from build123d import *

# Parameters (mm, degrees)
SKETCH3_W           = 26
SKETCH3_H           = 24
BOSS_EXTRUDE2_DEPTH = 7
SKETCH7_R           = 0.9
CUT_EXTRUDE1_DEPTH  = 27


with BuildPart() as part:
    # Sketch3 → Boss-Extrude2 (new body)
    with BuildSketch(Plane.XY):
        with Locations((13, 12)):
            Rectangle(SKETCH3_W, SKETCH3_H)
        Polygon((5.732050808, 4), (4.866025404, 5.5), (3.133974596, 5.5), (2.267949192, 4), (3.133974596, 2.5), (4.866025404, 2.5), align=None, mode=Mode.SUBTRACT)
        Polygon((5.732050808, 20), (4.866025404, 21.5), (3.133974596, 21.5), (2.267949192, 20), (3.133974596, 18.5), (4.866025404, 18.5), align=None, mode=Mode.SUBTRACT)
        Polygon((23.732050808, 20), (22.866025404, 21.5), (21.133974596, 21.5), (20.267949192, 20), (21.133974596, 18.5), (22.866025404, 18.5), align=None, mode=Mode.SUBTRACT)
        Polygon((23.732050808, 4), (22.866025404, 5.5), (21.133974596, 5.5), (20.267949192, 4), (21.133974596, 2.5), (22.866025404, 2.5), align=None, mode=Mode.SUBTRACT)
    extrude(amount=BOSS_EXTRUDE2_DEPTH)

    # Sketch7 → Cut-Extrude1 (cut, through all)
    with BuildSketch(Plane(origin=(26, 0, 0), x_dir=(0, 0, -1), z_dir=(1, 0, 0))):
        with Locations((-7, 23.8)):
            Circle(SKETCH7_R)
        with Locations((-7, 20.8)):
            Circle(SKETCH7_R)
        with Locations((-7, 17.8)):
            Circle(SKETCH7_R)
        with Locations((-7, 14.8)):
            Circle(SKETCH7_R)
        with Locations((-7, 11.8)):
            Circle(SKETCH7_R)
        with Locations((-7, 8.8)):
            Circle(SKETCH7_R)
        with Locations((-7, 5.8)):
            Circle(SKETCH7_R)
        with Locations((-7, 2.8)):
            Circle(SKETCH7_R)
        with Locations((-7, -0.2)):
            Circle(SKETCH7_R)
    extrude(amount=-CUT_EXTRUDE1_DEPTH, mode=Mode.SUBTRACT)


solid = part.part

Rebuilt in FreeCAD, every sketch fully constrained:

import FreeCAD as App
import Part
import Sketcher
Q = App.Units.Quantity

doc = App.newDocument("Part")
params = doc.addObject("Spreadsheet::Sheet", "Params")
for row, (alias, value) in enumerate([
    ("sketch1_width", "26 mm"),
    ("sketch1_height", "24 mm"),
    ("pad1_length", "7 mm"),
    ("sketch2_diameter", "1.8 mm"),
], start=1):
    params.set(f"A{row}", alias)
    params.set(f"B{row}", "=" + value)
    params.setAlias(f"B{row}", alias)

body = doc.addObject("PartDesign::Body", "Body")

# Sketch on XY plane
sketch1 = body.newObject("Sketcher::SketchObject", "Sketch")
sketch1.AttachmentSupport = (doc.getObject("XY_Plane"), [""])
sketch1.MapMode = "FlatFace"
sketch1.addGeometry([
    Part.LineSegment(App.Vector(0, 24, 0), App.Vector(0, 0, 0)),  # 0
    Part.LineSegment(App.Vector(0, 0, 0), App.Vector(26, 0, 0)),  # 1
    Part.LineSegment(App.Vector(26, 0, 0), App.Vector(26, 24, 0)),  # 2
    Part.LineSegment(App.Vector(26, 24, 0), App.Vector(0, 24, 0)),  # 3
    Part.LineSegment(App.Vector(4.9, 5.5, 0), App.Vector(5.7, 4, 0)),  # 4
    Part.LineSegment(App.Vector(5.7, 4, 0), App.Vector(4.9, 2.5, 0)),  # 5
    Part.LineSegment(App.Vector(4.9, 2.5, 0), App.Vector(3.1, 2.5, 0)),  # 6
    Part.LineSegment(App.Vector(3.1, 2.5, 0), App.Vector(2.3, 4, 0)),  # 7
    Part.LineSegment(App.Vector(2.3, 4, 0), App.Vector(3.1, 5.5, 0)),  # 8
    Part.LineSegment(App.Vector(3.1, 5.5, 0), App.Vector(4.9, 5.5, 0)),  # 9
    Part.LineSegment(App.Vector(22.9, 5.5, 0), App.Vector(23.7, 4, 0)),  # 10
    Part.LineSegment(App.Vector(23.7, 4, 0), App.Vector(22.9, 2.5, 0)),  # 11
    Part.LineSegment(App.Vector(22.9, 2.5, 0), App.Vector(21.1, 2.5, 0)),  # 12
    Part.LineSegment(App.Vector(21.1, 2.5, 0), App.Vector(20.3, 4, 0)),  # 13
    Part.LineSegment(App.Vector(20.3, 4, 0), App.Vector(21.1, 5.5, 0)),  # 14
    Part.LineSegment(App.Vector(21.1, 5.5, 0), App.Vector(22.9, 5.5, 0)),  # 15
    Part.LineSegment(App.Vector(4.9, 21.5, 0), App.Vector(5.7, 20, 0)),  # 16
    Part.LineSegment(App.Vector(5.7, 20, 0), App.Vector(4.9, 18.5, 0)),  # 17
    Part.LineSegment(App.Vector(4.9, 18.5, 0), App.Vector(3.1, 18.5, 0)),  # 18
    Part.LineSegment(App.Vector(3.1, 18.5, 0), App.Vector(2.3, 20, 0)),  # 19
    Part.LineSegment(App.Vector(2.3, 20, 0), App.Vector(3.1, 21.5, 0)),  # 20
    Part.LineSegment(App.Vector(3.1, 21.5, 0), App.Vector(4.9, 21.5, 0)),  # 21
    Part.LineSegment(App.Vector(22.9, 21.5, 0), App.Vector(23.7, 20, 0)),  # 22
    Part.LineSegment(App.Vector(23.7, 20, 0), App.Vector(22.9, 18.5, 0)),  # 23
    Part.LineSegment(App.Vector(22.9, 18.5, 0), App.Vector(21.1, 18.5, 0)),  # 24
    Part.LineSegment(App.Vector(21.1, 18.5, 0), App.Vector(20.3, 20, 0)),  # 25
    Part.LineSegment(App.Vector(20.3, 20, 0), App.Vector(21.1, 21.5, 0)),  # 26
    Part.LineSegment(App.Vector(21.1, 21.5, 0), App.Vector(22.9, 21.5, 0)),  # 27
], False)
sketch1.addConstraint([
    Sketcher.Constraint("Coincident", 0, 2, 1, 1),
    Sketcher.Constraint("Coincident", 1, 2, 2, 1),
    Sketcher.Constraint("Coincident", 2, 2, 3, 1),
    Sketcher.Constraint("Coincident", 3, 2, 0, 1),
    Sketcher.Constraint("Coincident", 4, 2, 5, 1),
    Sketcher.Constraint("Coincident", 5, 2, 6, 1),
    Sketcher.Constraint("Coincident", 6, 2, 7, 1),
    Sketcher.Constraint("Coincident", 7, 2, 8, 1),
    Sketcher.Constraint("Coincident", 8, 2, 9, 1),
    Sketcher.Constraint("Coincident", 9, 2, 4, 1),
    Sketcher.Constraint("Coincident", 10, 2, 11, 1),
    Sketcher.Constraint("Coincident", 11, 2, 12, 1),
    Sketcher.Constraint("Coincident", 12, 2, 13, 1),
    Sketcher.Constraint("Coincident", 13, 2, 14, 1),
    Sketcher.Constraint("Coincident", 14, 2, 15, 1),
    Sketcher.Constraint("Coincident", 15, 2, 10, 1),
    Sketcher.Constraint("Coincident", 16, 2, 17, 1),
    Sketcher.Constraint("Coincident", 17, 2, 18, 1),
    Sketcher.Constraint("Coincident", 18, 2, 19, 1),
    Sketcher.Constraint("Coincident", 19, 2, 20, 1),
    Sketcher.Constraint("Coincident", 20, 2, 21, 1),
    Sketcher.Constraint("Coincident", 21, 2, 16, 1),
    Sketcher.Constraint("Coincident", 22, 2, 23, 1),
    Sketcher.Constraint("Coincident", 23, 2, 24, 1),
    Sketcher.Constraint("Coincident", 24, 2, 25, 1),
    Sketcher.Constraint("Coincident", 25, 2, 26, 1),
    Sketcher.Constraint("Coincident", 26, 2, 27, 1),
    Sketcher.Constraint("Coincident", 27, 2, 22, 1),
    Sketcher.Constraint("Vertical", 0),
    Sketcher.Constraint("Horizontal", 1),
    Sketcher.Constraint("Vertical", 2),
    Sketcher.Constraint("Horizontal", 3),
    Sketcher.Constraint("Horizontal", 6),
    Sketcher.Constraint("Horizontal", 9),
    Sketcher.Constraint("Horizontal", 12),
    Sketcher.Constraint("Horizontal", 15),
    Sketcher.Constraint("Horizontal", 18),
    Sketcher.Constraint("Horizontal", 21),
    Sketcher.Constraint("Horizontal", 24),
    Sketcher.Constraint("Horizontal", 27),
    Sketcher.Constraint("Coincident", 0, 2, -1, 1),
    Sketcher.Constraint("Parallel", 4, 7),
    Sketcher.Constraint("Parallel", 5, 8),
    Sketcher.Constraint("Parallel", 7, 10),
    Sketcher.Constraint("Parallel", 8, 11),
    Sketcher.Constraint("Parallel", 10, 13),
    Sketcher.Constraint("Parallel", 11, 14),
    Sketcher.Constraint("Parallel", 13, 16),
    Sketcher.Constraint("Parallel", 14, 17),
    Sketcher.Constraint("Parallel", 16, 19),
    Sketcher.Constraint("Parallel", 17, 20),
    Sketcher.Constraint("Parallel", 19, 22),
    Sketcher.Constraint("Parallel", 20, 23),
    Sketcher.Constraint("Parallel", 22, 25),
    Sketcher.Constraint("Parallel", 23, 26),
    Sketcher.Constraint("Horizontal", 4, 2, 7, 2),
    Sketcher.Constraint("Horizontal", 7, 2, 10, 2),
    Sketcher.Constraint("Horizontal", 6, 2, 11, 2),
    Sketcher.Constraint("Horizontal", 10, 2, 13, 2),
    Sketcher.Constraint("Horizontal", 9, 2, 14, 2),
    Sketcher.Constraint("Horizontal", 16, 2, 19, 2),
    Sketcher.Constraint("Horizontal", 19, 2, 22, 2),
    Sketcher.Constraint("Horizontal", 18, 2, 23, 2),
    Sketcher.Constraint("Horizontal", 22, 2, 25, 2),
    Sketcher.Constraint("Horizontal", 21, 2, 26, 2),
    Sketcher.Constraint("Vertical", 6, 2, 8, 2),
    Sketcher.Constraint("Vertical", 5, 2, 9, 2),
    Sketcher.Constraint("Vertical", 4, 2, 16, 2),
    Sketcher.Constraint("Vertical", 9, 2, 17, 2),
    Sketcher.Constraint("Vertical", 8, 2, 18, 2),
    Sketcher.Constraint("Vertical", 18, 2, 20, 2),
    Sketcher.Constraint("Vertical", 10, 2, 22, 2),
    Sketcher.Constraint("Vertical", 14, 2, 24, 2),
    Sketcher.Constraint("Equal", 9, 12),
    Sketcher.Constraint("DistanceX", 1, 1, 1, 2, Q("26 mm")),
    Sketcher.Constraint("DistanceY", 0, 2, 0, 1, Q("24 mm")),
    Sketcher.Constraint("Angle", 4, Q("-60 deg")),
    Sketcher.Constraint("DistanceY", -1, 1, 4, 2, Q("4 mm")),
    Sketcher.Constraint("DistanceY", -1, 1, 16, 2, Q("20 mm")),
    Sketcher.Constraint("DistanceY", 6, 2, 8, 2, Q("3 mm")),
    Sketcher.Constraint("DistanceX", 4, 2, 10, 2, Q("18 mm")),
    Sketcher.Constraint("DistanceX", 6, 2, 6, 1, Q("1.732051 mm")),
    Sketcher.Constraint("DistanceX", -1, 1, 4, 2, Q("5.732051 mm")),
])
sketch1.setExpression("Constraints[74]", "Params.sketch1_width")
sketch1.setExpression("Constraints[75]", "Params.sketch1_height")
pad1 = body.newObject("PartDesign::Pad", "Pad")
pad1.Profile = sketch1
pad1.setExpression("Length", "Params.pad1_length")

# Sketch on YZ plane
sketch2 = body.newObject("Sketcher::SketchObject", "Sketch001")
sketch2.AttachmentSupport = (doc.getObject("YZ_Plane"), [""])
sketch2.MapMode = "FlatFace"
sketch2.AttachmentOffset = App.Placement(App.Vector(0, 0, 26), App.Rotation())
sketch2.addGeometry([
    Part.Circle(App.Vector(23.8, 7, 0), App.Vector(0, 0, 1), 0.9),  # 0
    Part.Circle(App.Vector(20.8, 7, 0), App.Vector(0, 0, 1), 0.9),  # 1
    Part.Circle(App.Vector(17.8, 7, 0), App.Vector(0, 0, 1), 0.9),  # 2
    Part.Circle(App.Vector(14.8, 7, 0), App.Vector(0, 0, 1), 0.9),  # 3
    Part.Circle(App.Vector(11.8, 7, 0), App.Vector(0, 0, 1), 0.9),  # 4
    Part.Circle(App.Vector(8.8, 7, 0), App.Vector(0, 0, 1), 0.9),  # 5
    Part.Circle(App.Vector(5.8, 7, 0), App.Vector(0, 0, 1), 0.9),  # 6
    Part.Circle(App.Vector(2.8, 7, 0), App.Vector(0, 0, 1), 0.9),  # 7
    Part.Circle(App.Vector(-0.2, 7, 0), App.Vector(0, 0, 1), 0.9),  # 8
], False)
sketch2.addConstraint([
    Sketcher.Constraint("Equal", 0, 1),
    Sketcher.Constraint("Equal", 1, 2),
    Sketcher.Constraint("Equal", 2, 3),
    Sketcher.Constraint("Equal", 3, 4),
    Sketcher.Constraint("Equal", 4, 5),
    Sketcher.Constraint("Equal", 5, 6),
    Sketcher.Constraint("Equal", 6, 7),
    Sketcher.Constraint("Equal", 7, 8),
    Sketcher.Constraint("Horizontal", 0, 3, 1, 3),
    Sketcher.Constraint("Horizontal", 1, 3, 2, 3),
    Sketcher.Constraint("Horizontal", 2, 3, 3, 3),
    Sketcher.Constraint("Horizontal", 3, 3, 4, 3),
    Sketcher.Constraint("Horizontal", 4, 3, 5, 3),
    Sketcher.Constraint("Horizontal", 5, 3, 6, 3),
    Sketcher.Constraint("Horizontal", 6, 3, 7, 3),
    Sketcher.Constraint("Horizontal", 7, 3, 8, 3),
    Sketcher.Constraint("Diameter", 0, Q("1.8 mm")),
    Sketcher.Constraint("DistanceY", -1, 1, 0, 3, Q("7 mm")),
    Sketcher.Constraint("DistanceX", 1, 3, 0, 3, Q("3 mm")),
    Sketcher.Constraint("DistanceX", 2, 3, 1, 3, Q("3 mm")),
    Sketcher.Constraint("DistanceX", 3, 3, 2, 3, Q("3 mm")),
    Sketcher.Constraint("DistanceX", 4, 3, 3, 3, Q("3 mm")),
    Sketcher.Constraint("DistanceX", 5, 3, 4, 3, Q("3 mm")),
    Sketcher.Constraint("DistanceX", 6, 3, 5, 3, Q("3 mm")),
    Sketcher.Constraint("DistanceX", 7, 3, 6, 3, Q("3 mm")),
    Sketcher.Constraint("DistanceX", 8, 3, 7, 3, Q("3 mm")),
    Sketcher.Constraint("DistanceX", -1, 1, 0, 3, Q("23.8 mm")),
])
sketch2.setExpression("Constraints[16]", "Params.sketch2_diameter")
pocket1 = body.newObject("PartDesign::Pocket", "Pocket")
pocket1.Profile = sketch2
pocket1.Type = "ThroughAll"

doc.recompute()
